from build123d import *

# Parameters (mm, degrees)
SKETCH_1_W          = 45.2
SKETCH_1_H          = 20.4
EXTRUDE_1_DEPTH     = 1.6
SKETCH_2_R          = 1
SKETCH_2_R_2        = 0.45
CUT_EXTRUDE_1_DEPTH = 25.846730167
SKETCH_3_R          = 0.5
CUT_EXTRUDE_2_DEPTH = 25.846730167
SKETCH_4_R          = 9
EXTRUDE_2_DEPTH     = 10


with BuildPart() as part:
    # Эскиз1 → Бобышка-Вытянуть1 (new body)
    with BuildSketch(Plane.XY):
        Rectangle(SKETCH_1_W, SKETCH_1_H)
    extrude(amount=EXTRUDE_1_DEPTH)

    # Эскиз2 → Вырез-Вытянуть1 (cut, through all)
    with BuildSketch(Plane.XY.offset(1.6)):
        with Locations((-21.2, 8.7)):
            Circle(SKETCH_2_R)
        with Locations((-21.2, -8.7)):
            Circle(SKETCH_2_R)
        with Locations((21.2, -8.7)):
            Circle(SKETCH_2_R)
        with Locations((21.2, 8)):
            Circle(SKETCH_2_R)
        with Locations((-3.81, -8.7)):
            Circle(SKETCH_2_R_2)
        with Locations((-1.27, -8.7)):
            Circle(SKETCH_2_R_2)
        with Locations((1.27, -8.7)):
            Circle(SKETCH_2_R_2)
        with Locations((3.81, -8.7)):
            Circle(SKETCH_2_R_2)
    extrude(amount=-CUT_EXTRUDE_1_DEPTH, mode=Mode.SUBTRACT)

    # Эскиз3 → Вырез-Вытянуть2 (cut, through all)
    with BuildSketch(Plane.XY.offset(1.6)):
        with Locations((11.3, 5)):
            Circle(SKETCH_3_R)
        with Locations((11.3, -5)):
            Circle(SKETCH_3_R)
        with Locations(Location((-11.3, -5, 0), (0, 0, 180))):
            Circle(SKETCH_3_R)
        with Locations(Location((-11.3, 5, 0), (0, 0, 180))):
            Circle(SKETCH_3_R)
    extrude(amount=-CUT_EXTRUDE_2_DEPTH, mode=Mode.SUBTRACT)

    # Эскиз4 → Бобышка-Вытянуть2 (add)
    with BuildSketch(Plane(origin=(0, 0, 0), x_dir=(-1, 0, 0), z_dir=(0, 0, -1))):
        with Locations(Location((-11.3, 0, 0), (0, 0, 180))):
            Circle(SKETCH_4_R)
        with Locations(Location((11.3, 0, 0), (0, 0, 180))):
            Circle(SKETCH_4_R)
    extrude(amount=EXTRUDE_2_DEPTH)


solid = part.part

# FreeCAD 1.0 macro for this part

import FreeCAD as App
import Part
import Sketcher

V = App.Vector


def add_polygon(sketch, points):
    """Adds a closed chain of lines whose ends are joined by coincident constraints."""
    first, n = sketch.GeometryCount, len(points)
    for a, b in zip(points, points[1:] + points[:1]):
        sketch.addGeometry(Part.LineSegment(App.Vector(*a, 0), App.Vector(*b, 0)), False)
    for i in range(n):
        sketch.addConstraint(Sketcher.Constraint("Coincident", first + i, 2, first + (i + 1) % n, 1))

doc = App.newDocument("Part")
params = doc.addObject("Spreadsheet::Sheet", "Params")
for row, (alias, value) in enumerate([
    ("sketch1_width", "45.2 mm"),
    ("sketch1_height", "20.4 mm"),
    ("pad1_length", "1.6 mm"),
    ("sketch2_diameter", "2 mm"),
    ("sketch2_diameter2", "0.9 mm"),
    ("sketch3_diameter", "1 mm"),
    ("sketch4_diameter", "18 mm"),
    ("pad2_length", "10 mm"),
], start=1):
    params.set(f"A{row}", alias)
    params.set(f"B{row}", "=" + value)
    params.setAlias(f"B{row}", alias)

body = doc.addObject("PartDesign::Body", "Body")

# Sketch on XY plane
sketch1 = doc.addObject("Sketcher::SketchObject", "Sketch")
body.addObject(sketch1)
sketch1.AttachmentSupport = (doc.XY_Plane, [""])
sketch1.MapMode = "FlatFace"
add_polygon(sketch1, [(-22.6, 10.2), (-22.6, -10.2), (22.6, -10.2), (22.6, 10.2)])  # lines 0-3
sketch1.addConstraint([
    Sketcher.Constraint("Vertical", 0),
    Sketcher.Constraint("Horizontal", 1),
    Sketcher.Constraint("Vertical", 2),
    Sketcher.Constraint("Horizontal", 3),
    Sketcher.Constraint("Symmetric", 0, 2, 2, 2, -1, 1),
    Sketcher.Constraint("DistanceX", 1, 1, 1, 2, 45.2),
    Sketcher.Constraint("DistanceY", 0, 2, 0, 1, 20.4),
])
sketch1.setExpression("Constraints[9]", "Params.sketch1_width")
sketch1.setExpression("Constraints[10]", "Params.sketch1_height")
pad1 = doc.addObject("PartDesign::Pad", "Pad")
body.addObject(pad1)
pad1.Profile = sketch1
pad1.setExpression("Length", "Params.pad1_length")

# Sketch on XY plane
sketch2 = doc.addObject("Sketcher::SketchObject", "Sketch001")
body.addObject(sketch2)
sketch2.AttachmentSupport = (doc.XY_Plane, [""])
sketch2.MapMode = "FlatFace"
sketch2.AttachmentOffset = App.Placement(V(0, 0, 1.6), App.Rotation())
sketch2.addGeometry([
    Part.Circle(V(-21.2, 8.7, 0), V(0, 0, 1), 1),  # 0
    Part.Circle(V(-21.2, -8.7, 0), V(0, 0, 1), 1),  # 1
    Part.Circle(V(21.2, -8.7, 0), V(0, 0, 1), 1),  # 2
    Part.Circle(V(21.2, 8, 0), V(0, 0, 1), 1),  # 3
    Part.Circle(V(-3.81, -8.7, 0), V(0, 0, 1), 0.45),  # 4
    Part.Circle(V(-1.27, -8.7, 0), V(0, 0, 1), 0.45),  # 5
    Part.Circle(V(1.27, -8.7, 0), V(0, 0, 1), 0.45),  # 6
    Part.Circle(V(3.81, -8.7, 0), V(0, 0, 1), 0.45),  # 7
], False)
sketch2.addConstraint([
    Sketcher.Constraint("Equal", 0, 1),
    Sketcher.Constraint("Equal", 1, 2),
    Sketcher.Constraint("Equal", 2, 3),
    Sketcher.Constraint("Equal", 4, 5),
    Sketcher.Constraint("Equal", 5, 6),
    Sketcher.Constraint("Equal", 6, 7),
    Sketcher.Constraint("Symmetric", 0, 3, 2, 3, -1, 1),
    Sketcher.Constraint("Symmetric", 1, 3, 2, 3, -2),
    Sketcher.Constraint("Symmetric", 5, 3, 6, 3, -2),
    Sketcher.Constraint("Symmetric", 4, 3, 7, 3, -2),
    Sketcher.Constraint("Horizontal", 2, 3, 4, 3),
    Sketcher.Constraint("Horizontal", 4, 3, 5, 3),
    Sketcher.Constraint("Vertical", 2, 3, 3, 3),
    Sketcher.Constraint("Diameter", 0, 2.0),
    Sketcher.Constraint("Diameter", 4, 0.9),
    Sketcher.Constraint("DistanceY", -1, 1, 3, 3, 8.0),
    Sketcher.Constraint("DistanceX", 0, 3, -1, 1, 21.2),
    Sketcher.Constraint("DistanceY", -1, 1, 0, 3, 8.7),
    Sketcher.Constraint("DistanceX", 4, 3, -1, 1, 3.81),
    Sketcher.Constraint("DistanceX", 5, 3, -1, 1, 1.27),
])
sketch2.setExpression("Constraints[13]", "Params.sketch2_diameter")
sketch2.setExpression("Constraints[14]", "Params.sketch2_diameter2")
pocket1 = doc.addObject("PartDesign::Pocket", "Pocket")
body.addObject(pocket1)
pocket1.Profile = sketch2
pocket1.Type = "ThroughAll"

# Sketch on XY plane
sketch3 = doc.addObject("Sketcher::SketchObject", "Sketch002")
body.addObject(sketch3)
sketch3.AttachmentSupport = (doc.XY_Plane, [""])
sketch3.MapMode = "FlatFace"
sketch3.AttachmentOffset = App.Placement(V(0, 0, 1.6), App.Rotation())
sketch3.addGeometry([
    Part.Circle(V(11.3, 5, 0), V(0, 0, 1), 0.5),
    Part.Circle(V(11.3, -5, 0), V(0, 0, 1), 0.5),
    Part.Circle(V(-11.3, -5, 0), V(0, 0, 1), 0.5),
    Part.Circle(V(-11.3, 5, 0), V(0, 0, 1), 0.5),
], False)
sketch3.addConstraint([
    Sketcher.Constraint("Equal", 0, 1),
    Sketcher.Constraint("Equal", 1, 2),
    Sketcher.Constraint("Equal", 2, 3),
    Sketcher.Constraint("Symmetric", 0, 3, 2, 3, -1, 1),
    Sketcher.Constraint("Symmetric", 1, 3, 3, 3, -1, 1),
    Sketcher.Constraint("Symmetric", 1, 3, 2, 3, -2),
    Sketcher.Constraint("Diameter", 0, 1.0),
    Sketcher.Constraint("DistanceY", -1, 1, 0, 3, 5.0),
    Sketcher.Constraint("DistanceX", -1, 1, 0, 3, 11.3),
])
sketch3.setExpression("Constraints[6]", "Params.sketch3_diameter")
pocket2 = doc.addObject("PartDesign::Pocket", "Pocket001")
body.addObject(pocket2)
pocket2.Profile = sketch3
pocket2.Type = "ThroughAll"

# Sketch on XY plane
sketch4 = doc.addObject("Sketcher::SketchObject", "Sketch003")
body.addObject(sketch4)
sketch4.AttachmentSupport = (doc.XY_Plane, [""])
sketch4.MapMode = "FlatFace"
sketch4.addGeometry([
    Part.Circle(V(11.3, 0, 0), V(0, 0, 1), 9),
    Part.Circle(V(-11.3, 0, 0), V(0, 0, 1), 9),
], False)
sketch4.addConstraint([
    Sketcher.Constraint("Equal", 0, 1),
    Sketcher.Constraint("Symmetric", 0, 3, 1, 3, -1, 1),
    Sketcher.Constraint("PointOnObject", 0, 3, -1),
    Sketcher.Constraint("Diameter", 0, 18.0),
    Sketcher.Constraint("DistanceX", -1, 1, 0, 3, 11.3),
])
sketch4.setExpression("Constraints[3]", "Params.sketch4_diameter")
pad2 = doc.addObject("PartDesign::Pad", "Pad001")
body.addObject(pad2)
pad2.Profile = sketch4
pad2.setExpression("Length", "Params.pad2_length")
pad2.Reversed = True

doc.recompute()
